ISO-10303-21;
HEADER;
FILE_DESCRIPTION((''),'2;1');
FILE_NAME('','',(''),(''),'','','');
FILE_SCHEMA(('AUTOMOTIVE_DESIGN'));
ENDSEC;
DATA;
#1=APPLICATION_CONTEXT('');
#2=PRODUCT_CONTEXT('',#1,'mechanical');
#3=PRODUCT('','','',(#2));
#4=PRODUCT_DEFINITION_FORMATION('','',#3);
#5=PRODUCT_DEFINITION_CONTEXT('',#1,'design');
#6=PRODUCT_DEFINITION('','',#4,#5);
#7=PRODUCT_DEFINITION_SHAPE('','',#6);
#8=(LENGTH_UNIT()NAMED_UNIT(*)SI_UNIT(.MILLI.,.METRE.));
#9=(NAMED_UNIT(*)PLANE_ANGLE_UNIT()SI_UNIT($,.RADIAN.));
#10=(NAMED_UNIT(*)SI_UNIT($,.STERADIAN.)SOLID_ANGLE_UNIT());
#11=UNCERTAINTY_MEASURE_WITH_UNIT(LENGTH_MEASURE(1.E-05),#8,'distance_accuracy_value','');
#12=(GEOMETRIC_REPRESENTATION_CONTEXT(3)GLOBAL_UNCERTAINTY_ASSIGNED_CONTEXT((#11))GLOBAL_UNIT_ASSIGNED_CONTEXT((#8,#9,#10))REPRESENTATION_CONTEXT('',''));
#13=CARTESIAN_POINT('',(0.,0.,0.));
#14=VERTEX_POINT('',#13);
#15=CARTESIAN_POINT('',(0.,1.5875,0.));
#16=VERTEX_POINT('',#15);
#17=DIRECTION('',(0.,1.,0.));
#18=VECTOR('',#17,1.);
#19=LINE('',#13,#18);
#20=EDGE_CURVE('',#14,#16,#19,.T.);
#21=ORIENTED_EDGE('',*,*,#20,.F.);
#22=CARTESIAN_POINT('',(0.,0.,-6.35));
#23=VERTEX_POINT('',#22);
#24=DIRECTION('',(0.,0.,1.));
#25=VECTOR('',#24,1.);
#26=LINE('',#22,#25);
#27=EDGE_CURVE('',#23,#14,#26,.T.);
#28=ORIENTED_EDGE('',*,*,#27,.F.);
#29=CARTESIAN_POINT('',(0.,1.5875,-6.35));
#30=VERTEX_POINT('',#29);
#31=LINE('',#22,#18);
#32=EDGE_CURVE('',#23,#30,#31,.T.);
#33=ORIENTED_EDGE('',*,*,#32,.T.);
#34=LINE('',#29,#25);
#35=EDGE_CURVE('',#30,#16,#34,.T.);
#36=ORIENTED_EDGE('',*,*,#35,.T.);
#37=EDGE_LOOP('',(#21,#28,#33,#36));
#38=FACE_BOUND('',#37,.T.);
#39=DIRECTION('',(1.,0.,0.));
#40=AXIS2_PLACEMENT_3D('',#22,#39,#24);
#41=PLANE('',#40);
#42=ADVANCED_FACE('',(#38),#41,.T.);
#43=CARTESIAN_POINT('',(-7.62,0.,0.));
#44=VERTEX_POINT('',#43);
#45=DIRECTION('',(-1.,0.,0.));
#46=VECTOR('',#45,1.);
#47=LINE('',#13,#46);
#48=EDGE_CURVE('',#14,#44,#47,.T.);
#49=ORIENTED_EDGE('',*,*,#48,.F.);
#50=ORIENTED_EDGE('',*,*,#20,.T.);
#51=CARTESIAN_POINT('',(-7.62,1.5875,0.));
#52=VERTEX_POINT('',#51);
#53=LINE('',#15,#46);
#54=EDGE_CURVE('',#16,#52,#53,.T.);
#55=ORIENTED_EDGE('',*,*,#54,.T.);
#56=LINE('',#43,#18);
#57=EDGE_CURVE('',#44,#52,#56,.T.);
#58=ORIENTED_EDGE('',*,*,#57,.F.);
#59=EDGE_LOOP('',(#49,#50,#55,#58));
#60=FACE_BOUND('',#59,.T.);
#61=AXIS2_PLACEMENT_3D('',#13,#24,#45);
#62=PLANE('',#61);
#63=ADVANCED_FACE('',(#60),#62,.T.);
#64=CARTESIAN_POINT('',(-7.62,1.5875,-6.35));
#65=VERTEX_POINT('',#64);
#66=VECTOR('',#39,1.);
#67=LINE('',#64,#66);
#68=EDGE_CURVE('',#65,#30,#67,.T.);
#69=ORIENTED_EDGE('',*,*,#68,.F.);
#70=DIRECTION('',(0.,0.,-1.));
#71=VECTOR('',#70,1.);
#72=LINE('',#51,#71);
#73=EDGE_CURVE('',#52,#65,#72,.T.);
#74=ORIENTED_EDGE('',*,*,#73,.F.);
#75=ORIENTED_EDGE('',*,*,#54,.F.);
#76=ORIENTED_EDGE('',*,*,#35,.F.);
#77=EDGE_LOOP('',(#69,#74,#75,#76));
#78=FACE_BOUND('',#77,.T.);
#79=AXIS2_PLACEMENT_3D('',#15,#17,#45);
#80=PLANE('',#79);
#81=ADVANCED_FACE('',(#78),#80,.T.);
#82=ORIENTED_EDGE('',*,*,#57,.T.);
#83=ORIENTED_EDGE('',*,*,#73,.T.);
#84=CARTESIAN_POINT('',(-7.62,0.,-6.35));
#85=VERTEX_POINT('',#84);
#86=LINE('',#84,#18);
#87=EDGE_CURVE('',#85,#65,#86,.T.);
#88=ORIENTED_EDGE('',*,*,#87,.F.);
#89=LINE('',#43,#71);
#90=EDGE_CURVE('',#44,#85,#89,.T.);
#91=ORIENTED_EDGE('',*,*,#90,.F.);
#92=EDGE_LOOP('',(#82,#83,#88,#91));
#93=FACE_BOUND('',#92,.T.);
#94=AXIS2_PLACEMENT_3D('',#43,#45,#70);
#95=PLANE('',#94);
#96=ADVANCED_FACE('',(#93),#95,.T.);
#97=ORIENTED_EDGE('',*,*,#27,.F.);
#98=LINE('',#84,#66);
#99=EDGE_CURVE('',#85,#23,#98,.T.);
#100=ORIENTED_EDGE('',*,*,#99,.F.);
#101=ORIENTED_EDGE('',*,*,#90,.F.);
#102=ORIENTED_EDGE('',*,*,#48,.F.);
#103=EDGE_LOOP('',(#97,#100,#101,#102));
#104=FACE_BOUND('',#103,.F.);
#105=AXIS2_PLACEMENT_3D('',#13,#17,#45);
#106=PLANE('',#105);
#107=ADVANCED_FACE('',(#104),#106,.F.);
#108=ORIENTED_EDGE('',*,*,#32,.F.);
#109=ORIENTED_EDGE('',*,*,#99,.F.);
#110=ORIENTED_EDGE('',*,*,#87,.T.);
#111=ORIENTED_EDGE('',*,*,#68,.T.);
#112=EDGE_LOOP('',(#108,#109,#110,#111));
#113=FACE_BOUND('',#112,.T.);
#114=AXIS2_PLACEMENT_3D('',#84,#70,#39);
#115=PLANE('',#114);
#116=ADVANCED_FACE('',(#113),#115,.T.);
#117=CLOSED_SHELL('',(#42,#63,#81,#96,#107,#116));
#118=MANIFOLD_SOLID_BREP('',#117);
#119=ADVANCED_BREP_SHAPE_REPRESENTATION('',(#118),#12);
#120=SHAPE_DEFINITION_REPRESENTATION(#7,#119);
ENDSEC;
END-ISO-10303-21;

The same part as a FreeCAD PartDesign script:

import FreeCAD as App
import Part
import Sketcher
from FreeCAD import Vector
Q = App.Units.Quantity

doc = App.newDocument("Part")
body = doc.addObject("PartDesign::Body", "Body")

# Sketch on XZ plane
sketch1 = doc.addObject("Sketcher::SketchObject", "Sketch")
body.addObject(sketch1)
sketch1.AttachmentSupport = (doc.XZ_Plane, [""])
sketch1.MapMode = "FlatFace"
sketch1.addGeometry(Part.LineSegment(Vector(-7.62, 0, 0), Vector(0, 0, 0)), False)
sketch1.addGeometry(Part.LineSegment(Vector(0, 0, 0), Vector(0, -6.35, 0)), False)
sketch1.addGeometry(Part.LineSegment(Vector(0, -6.35, 0), Vector(-7.62, -6.35, 0)), False)
sketch1.addGeometry(Part.LineSegment(Vector(-7.62, -6.35, 0), Vector(-7.62, 0, 0)), False)
sketch1.addConstraint(Sketcher.Constraint("Coincident", 0, 2, 1, 1))
sketch1.addConstraint(Sketcher.Constraint("Coincident", 1, 2, 2, 1))
sketch1.addConstraint(Sketcher.Constraint("Coincident", 2, 2, 3, 1))
sketch1.addConstraint(Sketcher.Constraint("Coincident", 3, 2, 0, 1))
sketch1.addConstraint(Sketcher.Constraint("Horizontal", 0))
sketch1.addConstraint(Sketcher.Constraint("Vertical", 1))
sketch1.addConstraint(Sketcher.Constraint("Horizontal", 2))
sketch1.addConstraint(Sketcher.Constraint("Vertical", 3))
sketch1.addConstraint(Sketcher.Constraint("Coincident", 0, 2, -1, 1))
sketch1.addConstraint(Sketcher.Constraint("DistanceX", 0, 1, 0, 2, Q("0.3 in")))
sketch1.addConstraint(Sketcher.Constraint("DistanceY", 1, 2, 1, 1, Q("0.25 in")))
pad1 = doc.addObject("PartDesign::Pad", "Pad")
body.addObject(pad1)
pad1.Profile = sketch1
pad1.Length = Q("0.0625 in")
pad1.Reversed = True

doc.recompute()
